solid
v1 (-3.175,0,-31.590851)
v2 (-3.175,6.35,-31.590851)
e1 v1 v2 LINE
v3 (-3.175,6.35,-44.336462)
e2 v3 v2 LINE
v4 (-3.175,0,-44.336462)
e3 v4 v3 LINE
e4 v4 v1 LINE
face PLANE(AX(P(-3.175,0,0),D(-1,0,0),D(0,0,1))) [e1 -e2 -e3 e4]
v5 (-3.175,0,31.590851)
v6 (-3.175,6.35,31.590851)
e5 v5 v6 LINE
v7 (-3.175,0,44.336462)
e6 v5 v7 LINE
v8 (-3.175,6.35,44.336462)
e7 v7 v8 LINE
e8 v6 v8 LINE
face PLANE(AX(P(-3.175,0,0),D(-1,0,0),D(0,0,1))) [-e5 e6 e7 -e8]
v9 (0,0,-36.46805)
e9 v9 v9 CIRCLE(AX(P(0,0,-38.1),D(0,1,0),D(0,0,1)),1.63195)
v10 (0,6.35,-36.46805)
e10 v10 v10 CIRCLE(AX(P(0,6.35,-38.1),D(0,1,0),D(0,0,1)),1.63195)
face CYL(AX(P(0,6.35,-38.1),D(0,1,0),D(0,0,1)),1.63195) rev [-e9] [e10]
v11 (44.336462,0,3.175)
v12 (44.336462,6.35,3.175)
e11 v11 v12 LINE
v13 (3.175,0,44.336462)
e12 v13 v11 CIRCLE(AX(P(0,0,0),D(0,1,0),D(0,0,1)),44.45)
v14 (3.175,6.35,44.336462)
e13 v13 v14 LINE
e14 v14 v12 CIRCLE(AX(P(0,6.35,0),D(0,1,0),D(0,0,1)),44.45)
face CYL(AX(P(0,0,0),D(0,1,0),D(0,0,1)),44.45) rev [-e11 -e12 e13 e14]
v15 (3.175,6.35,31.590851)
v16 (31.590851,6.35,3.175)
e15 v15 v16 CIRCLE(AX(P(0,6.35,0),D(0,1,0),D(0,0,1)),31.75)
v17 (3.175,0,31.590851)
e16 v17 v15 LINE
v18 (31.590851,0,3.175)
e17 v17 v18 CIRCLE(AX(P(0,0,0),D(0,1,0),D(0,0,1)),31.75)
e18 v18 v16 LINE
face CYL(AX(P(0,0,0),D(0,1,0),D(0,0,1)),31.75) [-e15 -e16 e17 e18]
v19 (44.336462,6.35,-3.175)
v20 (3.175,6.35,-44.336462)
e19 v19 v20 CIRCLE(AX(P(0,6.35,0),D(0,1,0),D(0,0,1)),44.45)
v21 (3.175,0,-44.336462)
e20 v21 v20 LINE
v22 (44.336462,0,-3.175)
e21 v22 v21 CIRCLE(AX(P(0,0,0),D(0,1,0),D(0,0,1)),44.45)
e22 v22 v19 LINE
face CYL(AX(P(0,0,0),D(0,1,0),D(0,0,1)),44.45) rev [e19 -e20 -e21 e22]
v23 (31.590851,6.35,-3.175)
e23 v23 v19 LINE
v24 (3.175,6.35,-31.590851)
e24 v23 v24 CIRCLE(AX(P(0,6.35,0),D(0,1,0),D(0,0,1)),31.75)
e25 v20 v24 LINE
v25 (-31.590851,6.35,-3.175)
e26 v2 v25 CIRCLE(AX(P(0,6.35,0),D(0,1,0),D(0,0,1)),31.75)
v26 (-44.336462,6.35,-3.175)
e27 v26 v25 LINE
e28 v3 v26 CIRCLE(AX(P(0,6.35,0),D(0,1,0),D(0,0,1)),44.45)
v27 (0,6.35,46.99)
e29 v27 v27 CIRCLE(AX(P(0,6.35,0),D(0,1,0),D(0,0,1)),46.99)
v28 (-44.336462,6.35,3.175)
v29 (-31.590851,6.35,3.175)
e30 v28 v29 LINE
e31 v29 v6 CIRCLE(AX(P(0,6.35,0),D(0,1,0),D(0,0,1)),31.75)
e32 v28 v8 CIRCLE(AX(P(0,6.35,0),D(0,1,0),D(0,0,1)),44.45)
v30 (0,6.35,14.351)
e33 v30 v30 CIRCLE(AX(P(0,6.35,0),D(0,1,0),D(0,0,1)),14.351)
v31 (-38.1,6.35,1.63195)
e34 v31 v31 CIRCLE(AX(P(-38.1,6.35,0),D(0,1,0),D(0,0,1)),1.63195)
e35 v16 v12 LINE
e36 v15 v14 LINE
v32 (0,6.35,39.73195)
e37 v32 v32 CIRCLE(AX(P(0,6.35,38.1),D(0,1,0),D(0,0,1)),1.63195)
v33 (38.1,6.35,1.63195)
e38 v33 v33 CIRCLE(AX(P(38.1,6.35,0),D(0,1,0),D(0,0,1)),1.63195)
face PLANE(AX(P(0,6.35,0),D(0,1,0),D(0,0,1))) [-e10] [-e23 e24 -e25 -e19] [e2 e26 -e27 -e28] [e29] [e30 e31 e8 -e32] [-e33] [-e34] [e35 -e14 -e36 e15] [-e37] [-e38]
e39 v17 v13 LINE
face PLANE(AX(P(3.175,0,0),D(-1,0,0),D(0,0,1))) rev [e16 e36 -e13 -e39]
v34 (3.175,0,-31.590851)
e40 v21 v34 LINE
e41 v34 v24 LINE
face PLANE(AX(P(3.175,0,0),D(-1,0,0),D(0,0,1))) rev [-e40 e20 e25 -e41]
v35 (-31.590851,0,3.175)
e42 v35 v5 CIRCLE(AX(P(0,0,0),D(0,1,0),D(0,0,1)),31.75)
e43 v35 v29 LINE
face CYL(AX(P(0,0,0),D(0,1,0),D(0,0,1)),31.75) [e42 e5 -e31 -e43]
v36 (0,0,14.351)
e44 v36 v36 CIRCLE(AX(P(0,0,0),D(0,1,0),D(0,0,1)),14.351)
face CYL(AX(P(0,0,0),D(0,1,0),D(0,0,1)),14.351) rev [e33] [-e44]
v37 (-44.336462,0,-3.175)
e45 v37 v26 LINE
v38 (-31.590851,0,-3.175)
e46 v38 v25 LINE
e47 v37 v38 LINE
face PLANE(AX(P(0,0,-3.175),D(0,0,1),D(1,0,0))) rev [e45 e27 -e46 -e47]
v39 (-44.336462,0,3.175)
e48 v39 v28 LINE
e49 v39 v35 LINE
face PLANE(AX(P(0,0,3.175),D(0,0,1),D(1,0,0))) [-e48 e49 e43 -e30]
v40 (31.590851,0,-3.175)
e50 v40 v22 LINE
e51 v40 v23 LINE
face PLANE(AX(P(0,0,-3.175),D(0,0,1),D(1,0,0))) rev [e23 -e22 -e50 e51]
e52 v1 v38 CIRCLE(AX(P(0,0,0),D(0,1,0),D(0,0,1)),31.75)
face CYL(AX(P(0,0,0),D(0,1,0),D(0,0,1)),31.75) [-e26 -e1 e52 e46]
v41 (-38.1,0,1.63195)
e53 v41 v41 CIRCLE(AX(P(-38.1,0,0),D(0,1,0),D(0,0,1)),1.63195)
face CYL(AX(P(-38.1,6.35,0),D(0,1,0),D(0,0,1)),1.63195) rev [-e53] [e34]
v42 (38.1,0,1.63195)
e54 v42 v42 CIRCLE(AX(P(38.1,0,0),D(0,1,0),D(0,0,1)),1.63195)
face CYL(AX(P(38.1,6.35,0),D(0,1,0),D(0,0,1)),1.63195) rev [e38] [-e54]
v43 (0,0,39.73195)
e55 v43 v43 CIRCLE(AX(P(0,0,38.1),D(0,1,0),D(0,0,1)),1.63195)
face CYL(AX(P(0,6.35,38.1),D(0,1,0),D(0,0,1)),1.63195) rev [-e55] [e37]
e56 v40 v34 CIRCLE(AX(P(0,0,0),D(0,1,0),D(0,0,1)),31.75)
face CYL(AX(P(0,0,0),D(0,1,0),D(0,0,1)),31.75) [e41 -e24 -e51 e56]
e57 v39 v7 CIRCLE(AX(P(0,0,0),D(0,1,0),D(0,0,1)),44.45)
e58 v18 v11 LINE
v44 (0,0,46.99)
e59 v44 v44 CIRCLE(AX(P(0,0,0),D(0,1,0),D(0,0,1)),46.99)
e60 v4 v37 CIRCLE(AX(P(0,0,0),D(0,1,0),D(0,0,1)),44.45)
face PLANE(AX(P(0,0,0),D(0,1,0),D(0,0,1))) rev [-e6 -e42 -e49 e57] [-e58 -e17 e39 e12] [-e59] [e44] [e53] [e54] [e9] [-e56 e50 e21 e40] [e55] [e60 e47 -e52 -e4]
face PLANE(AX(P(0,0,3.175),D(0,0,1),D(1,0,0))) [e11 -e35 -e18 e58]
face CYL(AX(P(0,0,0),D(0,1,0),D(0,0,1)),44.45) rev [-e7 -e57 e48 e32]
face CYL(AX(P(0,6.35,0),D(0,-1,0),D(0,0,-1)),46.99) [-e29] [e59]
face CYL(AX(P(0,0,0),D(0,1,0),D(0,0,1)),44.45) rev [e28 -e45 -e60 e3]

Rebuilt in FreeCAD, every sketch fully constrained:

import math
import FreeCAD as App
import Part
import Sketcher

V = App.Vector
Q = App.Units.Quantity


def add_polygon(sketch, points):
    """Adds a closed chain of lines whose ends are joined by coincident constraints."""
    first, n = sketch.GeometryCount, len(points)
    for a, b in zip(points, points[1:] + points[:1]):
        sketch.addGeometry(Part.LineSegment(App.Vector(*a, 0), App.Vector(*b, 0)), False)
    for i in range(n):
        sketch.addConstraint(Sketcher.Constraint("Coincident", first + i, 2, first + (i + 1) % n, 1))

doc = App.newDocument("Part")
body = doc.addObject("PartDesign::Body", "Body")

# Sketch on XZ plane
sketch1 = body.newObject("Sketcher::SketchObject", "Sketch")
sketch1.AttachmentSupport = (doc.getObject("XZ_Plane"), [""])
sketch1.MapMode = "FlatFace"
sketch1.addGeometry(Part.Circle(V(0, 0, 0), V(0, 0, 1), 46.99), False)
sketch1.addConstraint([
    Sketcher.Constraint("Coincident", 0, 3, -1, 1),
    Sketcher.Constraint("Diameter", 0, Q("3.7 in")),
])
pad1 = body.newObject("PartDesign::Pad", "Pad")
pad1.Profile = sketch1
pad1.Length = Q("0.25 in")
pad1.Reversed = True

# Sketch on XZ plane
sketch2 = body.newObject("Sketcher::SketchObject", "Sketch001")
sketch2.AttachmentSupport = (doc.getObject("XZ_Plane"), [""])
sketch2.MapMode = "FlatFace"
sketch2.AttachmentOffset = App.Placement(V(0, 0, -0.25 * 25.4), App.Rotation())
sketch2.addGeometry(Part.Circle(V(0, 0, 0), V(0, 0, 1), 14.351), False)
sketch2.addConstraint([
    Sketcher.Constraint("Coincident", 0, 3, -1, 1),
    Sketcher.Constraint("Diameter", 0, Q("1.13 in")),
])
pocket1 = body.newObject("PartDesign::Pocket", "Pocket")
pocket1.Profile = sketch2
pocket1.Length = Q("0.25 in")
pocket1.Reversed = True

# Sketch on XZ plane
sketch3 = body.newObject("Sketcher::SketchObject", "Sketch002")
sketch3.AttachmentSupport = (doc.getObject("XZ_Plane"), [""])
sketch3.MapMode = "FlatFace"
sketch3.AttachmentOffset = App.Placement(V(0, 0, -0.25 * 25.4), App.Rotation())
sketch3.addGeometry([
    Part.ArcOfCircle(Part.Circle(V(0, 0, 0), V(0, 0, 1), 44.45), math.radians(-85.903956), math.radians(-4.096044)),  # 0
    Part.LineSegment(V(3.175, -44.336462, 0), V(3.175, -31.590851, 0)),  # 1
    Part.ArcOfCircle(Part.Circle(V(0, 0, 0), V(0, 0, 1), 31.75), math.radians(-84.26083), math.radians(-5.73917)),  # 2
    Part.LineSegment(V(31.590851, -3.175, 0), V(44.336462, -3.175, 0)),  # 3
    Part.LineSegment(V(-3.175, -31.590851, 0), V(-3.175, -44.336462, 0)),  # 4
    Part.ArcOfCircle(Part.Circle(V(0, 0, 0), V(0, 0, 1), 44.45), math.radians(-175.903956), math.radians(-94.096044)),  # 5
    Part.LineSegment(V(-44.336462, -3.175, 0), V(-31.590851, -3.175, 0)),  # 6
    Part.ArcOfCircle(Part.Circle(V(0, 0, 0), V(0, 0, 1), 31.75), math.radians(-174.26083), math.radians(-95.73917)),  # 7
    Part.ArcOfCircle(Part.Circle(V(0, 0, 0), V(0, 0, 1), 44.45), math.radians(4.096044), math.radians(85.903956)),  # 8
    Part.LineSegment(V(44.336462, 3.175, 0), V(31.590851, 3.175, 0)),  # 9
    Part.ArcOfCircle(Part.Circle(V(0, 0, 0), V(0, 0, 1), 31.75), math.radians(5.73917), math.radians(84.26083)),  # 10
    Part.LineSegment(V(3.175, 31.590851, 0), V(3.175, 44.336462, 0)),  # 11
    Part.LineSegment(V(-31.590851, 3.175, 0), V(-44.336462, 3.175, 0)),  # 12
    Part.ArcOfCircle(Part.Circle(V(0, 0, 0), V(0, 0, 1), 44.45), math.radians(94.096044), math.radians(175.903956)),  # 13
    Part.LineSegment(V(-3.175, 44.336462, 0), V(-3.175, 31.590851, 0)),  # 14
    Part.ArcOfCircle(Part.Circle(V(0, 0, 0), V(0, 0, 1), 31.75), math.radians(95.73917), math.radians(174.26083)),  # 15
], False)
sketch3.addConstraint([
    Sketcher.Constraint("Coincident", 0, 1, 1, 1),
    Sketcher.Constraint("Coincident", 1, 2, 2, 1),
    Sketcher.Constraint("Coincident", 2, 2, 3, 1),
    Sketcher.Constraint("Coincident", 3, 2, 0, 2),
    Sketcher.Constraint("Coincident", 4, 2, 5, 2),
    Sketcher.Constraint("Coincident", 5, 1, 6, 1),
    Sketcher.Constraint("Coincident", 6, 2, 7, 1),
    Sketcher.Constraint("Coincident", 7, 2, 4, 1),
    Sketcher.Constraint("Coincident", 8, 1, 9, 1),
    Sketcher.Constraint("Coincident", 9, 2, 10, 1),
    Sketcher.Constraint("Coincident", 10, 2, 11, 1),
    Sketcher.Constraint("Coincident", 11, 2, 8, 2),
    Sketcher.Constraint("Coincident", 12, 2, 13, 2),
    Sketcher.Constraint("Coincident", 13, 1, 14, 1),
    Sketcher.Constraint("Coincident", 14, 2, 15, 1),
    Sketcher.Constraint("Coincident", 15, 2, 12, 1),
    Sketcher.Constraint("Vertical", 1),
    Sketcher.Constraint("Horizontal", 3),
    Sketcher.Constraint("Vertical", 4),
    Sketcher.Constraint("Horizontal", 6),
    Sketcher.Constraint("Horizontal", 9),
    Sketcher.Constraint("Vertical", 11),
    Sketcher.Constraint("Horizontal", 12),
    Sketcher.Constraint("Vertical", 14),
    Sketcher.Constraint("Coincident", 0, 3, -1, 1),
    Sketcher.Constraint("Coincident", 2, 3, -1, 1),
    Sketcher.Constraint("Coincident", 5, 3, -1, 1),
    Sketcher.Constraint("Coincident", 7, 3, -1, 1),
    Sketcher.Constraint("Coincident", 8, 3, -1, 1),
    Sketcher.Constraint("Coincident", 10, 3, -1, 1),
    Sketcher.Constraint("Coincident", 13, 3, -1, 1),
    Sketcher.Constraint("Coincident", 15, 3, -1, 1),
    Sketcher.Constraint("Equal", 0, 5),
    Sketcher.Constraint("Equal", 2, 7),
    Sketcher.Constraint("Equal", 5, 8),
    Sketcher.Constraint("Equal", 7, 10),
    Sketcher.Constraint("Equal", 8, 13),
    Sketcher.Constraint("Equal", 10, 15),
    Sketcher.Constraint("Horizontal", 0, 1, 4, 2),
    Sketcher.Constraint("Horizontal", 3, 2, 5, 1),
    Sketcher.Constraint("Horizontal", 9, 2, 12, 2),
    Sketcher.Constraint("Horizontal", 11, 2, 13, 1),
    Sketcher.Constraint("Vertical", 3, 2, 8, 1),
    Sketcher.Constraint("Vertical", 1, 2, 10, 2),
    Sketcher.Constraint("Equal", 12, 1),
    Sketcher.Constraint("Radius", 0, Q("1.75 in")),
    Sketcher.Constraint("Radius", 2, Q("1.25 in")),
    Sketcher.Constraint("DistanceX", 4, 2, 0, 1, Q("0.25 in")),
])
pocket2 = body.newObject("PartDesign::Pocket", "Pocket001")
pocket2.Profile = sketch3
pocket2.Length = Q("0.25 in")
pocket2.Reversed = True

# Sketch on YZ plane
sketch4 = body.newObject("Sketcher::SketchObject", "Sketch003")
sketch4.AttachmentSupport = (doc.getObject("YZ_Plane"), [""])
sketch4.MapMode = "FlatFace"
add_polygon(sketch4, [(-4.790574, -38.1), (6.35, -38.1), (6.35, -36.46805), (-3.81, -36.46805)])  # lines 0-3
sketch4.addGeometry(Part.LineSegment(V(6.35, -38.1, 0), V(-4.790574, -38.1, 0)), True)  # axis
sketch4.addConstraint([
    Sketcher.Constraint("Horizontal", 0),
    Sketcher.Constraint("Vertical", 1),
    Sketcher.Constraint("Horizontal", 2),
    Sketcher.Constraint("Horizontal", 4),
    Sketcher.Constraint("Coincident", 4, 1, 0, 2),
    Sketcher.Constraint("Equal", 0, 4),
    Sketcher.Constraint("DistanceX", 2, 2, 2, 1, Q("0.4 in")),
    Sketcher.Constraint("Angle", 3, Q("-121 deg")),
    Sketcher.Constraint("DistanceY", 0, 2, -1, 1, Q("1.5 in")),
    Sketcher.Constraint("DistanceX", -1, 1, 0, 2, Q("0.25 in")),
    Sketcher.Constraint("DistanceY", 1, 1, 1, 2, 1.63195),
])
groove = body.newObject("PartDesign::Groove", "Groove")
groove.Profile = sketch4
groove.ReferenceAxis = (sketch4, ["Axis0"])
groove.Angle = 360
doc.recompute()

polarpattern = body.newObject("PartDesign::PolarPattern", "PolarPattern")
polarpattern.Originals = [groove]
polarpattern.Axis = (doc.getObject("Y_Axis"), [""])
polarpattern.Angle = 360
polarpattern.Occurrences = 4
body.Tip = polarpattern

doc.recompute()
